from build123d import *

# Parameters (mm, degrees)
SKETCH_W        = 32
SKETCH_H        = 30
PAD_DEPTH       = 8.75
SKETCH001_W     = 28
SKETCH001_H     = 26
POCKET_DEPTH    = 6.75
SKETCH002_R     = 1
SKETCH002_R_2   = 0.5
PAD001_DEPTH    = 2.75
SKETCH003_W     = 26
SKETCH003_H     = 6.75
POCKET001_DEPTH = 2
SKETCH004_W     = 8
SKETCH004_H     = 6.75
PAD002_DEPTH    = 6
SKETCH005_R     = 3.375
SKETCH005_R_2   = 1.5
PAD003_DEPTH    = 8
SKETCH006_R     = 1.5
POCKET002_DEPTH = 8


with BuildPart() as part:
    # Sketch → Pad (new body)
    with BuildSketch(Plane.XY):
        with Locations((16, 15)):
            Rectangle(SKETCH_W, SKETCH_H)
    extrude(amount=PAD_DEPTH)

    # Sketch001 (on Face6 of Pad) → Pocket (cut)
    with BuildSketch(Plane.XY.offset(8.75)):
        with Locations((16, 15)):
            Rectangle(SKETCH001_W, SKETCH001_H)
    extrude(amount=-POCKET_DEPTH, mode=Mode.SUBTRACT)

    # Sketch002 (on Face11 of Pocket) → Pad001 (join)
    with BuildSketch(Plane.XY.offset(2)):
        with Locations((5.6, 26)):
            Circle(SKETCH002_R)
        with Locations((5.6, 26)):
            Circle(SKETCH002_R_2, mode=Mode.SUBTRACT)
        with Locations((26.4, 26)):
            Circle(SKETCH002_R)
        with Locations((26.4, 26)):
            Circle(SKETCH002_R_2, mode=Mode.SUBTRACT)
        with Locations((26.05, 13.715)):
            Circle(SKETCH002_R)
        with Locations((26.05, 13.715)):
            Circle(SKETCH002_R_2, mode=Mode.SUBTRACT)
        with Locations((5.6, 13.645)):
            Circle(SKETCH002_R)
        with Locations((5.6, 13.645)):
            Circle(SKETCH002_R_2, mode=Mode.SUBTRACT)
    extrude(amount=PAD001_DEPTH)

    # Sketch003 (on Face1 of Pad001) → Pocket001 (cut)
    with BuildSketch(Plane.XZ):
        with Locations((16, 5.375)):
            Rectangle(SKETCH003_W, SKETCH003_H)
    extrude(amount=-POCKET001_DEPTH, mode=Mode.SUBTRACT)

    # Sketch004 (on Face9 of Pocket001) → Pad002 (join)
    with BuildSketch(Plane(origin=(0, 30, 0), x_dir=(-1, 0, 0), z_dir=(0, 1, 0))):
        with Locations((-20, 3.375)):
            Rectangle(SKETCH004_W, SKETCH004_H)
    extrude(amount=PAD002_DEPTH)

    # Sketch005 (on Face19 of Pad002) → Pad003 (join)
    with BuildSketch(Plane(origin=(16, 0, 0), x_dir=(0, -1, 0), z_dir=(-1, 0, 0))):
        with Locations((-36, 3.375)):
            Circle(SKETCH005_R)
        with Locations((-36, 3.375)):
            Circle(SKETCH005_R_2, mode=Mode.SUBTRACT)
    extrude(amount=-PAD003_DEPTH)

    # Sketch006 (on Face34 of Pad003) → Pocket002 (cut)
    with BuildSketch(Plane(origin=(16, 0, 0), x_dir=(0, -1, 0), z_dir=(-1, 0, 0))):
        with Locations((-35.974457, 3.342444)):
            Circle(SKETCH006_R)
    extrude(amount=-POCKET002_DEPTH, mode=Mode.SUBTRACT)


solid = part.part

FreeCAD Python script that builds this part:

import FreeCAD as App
import Part
import Sketcher
from FreeCAD import Vector
Q = App.Units.Quantity


def add_polygon(sketch, points):
    """Adds a closed chain of lines whose ends are joined by coincident constraints."""
    first, n = sketch.GeometryCount, len(points)
    for a, b in zip(points, points[1:] + points[:1]):
        sketch.addGeometry(Part.LineSegment(App.Vector(*a, 0), App.Vector(*b, 0)), False)
    for i in range(n):
        sketch.addConstraint(Sketcher.Constraint("Coincident", first + i, 2, first + (i + 1) % n, 1))

doc = App.newDocument("Part")
params = doc.addObject("Spreadsheet::Sheet", "Params")
for row, (alias, value) in enumerate([
    ("sketch1_width", "32 mm"),
    ("sketch1_height", "30 mm"),
    ("pad1_length", "8.75 mm"),
    ("sketch2_width", "28 mm"),
    ("sketch2_height", "26 mm"),
    ("pocket1_length", "6.75 mm"),
    ("sketch3_diameter", "2 mm"),
    ("sketch3_diameter2", "1 mm"),
    ("pad2_length", "2.75 mm"),
    ("sketch4_width", "26 mm"),
    ("sketch4_height", "6.75 mm"),
    ("pocket2_length", "2 mm"),
    ("sketch5_width", "8 mm"),
    ("sketch5_height", "6.75 mm"),
    ("pad3_length", "6 mm"),
    ("sketch6_diameter", "3 mm"),
    ("sketch6_diameter2", "6.75 mm"),
    ("pad4_length", "8 mm"),
    ("sketch7_diameter", "3 mm"),
    ("pocket3_length", "8 mm"),
], start=1):
    params.set(f"A{row}", alias)
    params.set(f"B{row}", "=" + value)
    params.setAlias(f"B{row}", alias)

body = doc.addObject("PartDesign::Body", "Body")

sketch1 = body.newObject("Sketcher::SketchObject", "Sketch")
sketch1.AttachmentSupport = (doc.getObject("XY_Plane"), [""])
sketch1.MapMode = "FlatFace"
add_polygon(sketch1, [(0, 30), (0, 0), (32, 0), (32, 30)])
sketch1.addConstraint([
    Sketcher.Constraint("Vertical", 0),
    Sketcher.Constraint("Horizontal", 1),
    Sketcher.Constraint("Vertical", 2),
    Sketcher.Constraint("Horizontal", 3),
    Sketcher.Constraint("Coincident", 0, 2, -1, 1),
    Sketcher.Constraint("DistanceX", 1, 1, 1, 2, Q("32 mm")),
    Sketcher.Constraint("DistanceY", 0, 2, 0, 1, Q("30 mm")),
])
sketch1.setExpression("Constraints[9]", "Params.sketch1_width")
sketch1.setExpression("Constraints[10]", "Params.sketch1_height")
pad1 = body.newObject("PartDesign::Pad", "Pad")
pad1.Profile = sketch1
pad1.setExpression("Length", "Params.pad1_length")

sketch2 = body.newObject("Sketcher::SketchObject", "Sketch001")
sketch2.AttachmentSupport = (doc.getObject("XY_Plane"), [""])
sketch2.MapMode = "FlatFace"
sketch2.AttachmentOffset = App.Placement(Vector(0, 0, 8.75), App.Rotation())
add_polygon(sketch2, [(2, 28), (2, 2), (30, 2), (30, 28)])
sketch2.addConstraint([
    Sketcher.Constraint("Vertical", 0),
    Sketcher.Constraint("Horizontal", 1),
    Sketcher.Constraint("Vertical", 2),
    Sketcher.Constraint("Horizontal", 3),
    Sketcher.Constraint("DistanceX", 1, 1, 1, 2, Q("28 mm")),
    Sketcher.Constraint("DistanceY", 0, 2, 0, 1, Q("26 mm")),
    Sketcher.Constraint("DistanceX", -1, 1, 0, 2, Q("2 mm")),
    Sketcher.Constraint("DistanceY", -1, 1, 0, 2, Q("2 mm")),
])
sketch2.setExpression("Constraints[8]", "Params.sketch2_width")
sketch2.setExpression("Constraints[9]", "Params.sketch2_height")
pocket1 = body.newObject("PartDesign::Pocket", "Pocket")
pocket1.Profile = sketch2
pocket1.setExpression("Length", "Params.pocket1_length")

sketch3 = body.newObject("Sketcher::SketchObject", "Sketch002")
sketch3.AttachmentSupport = (doc.getObject("XY_Plane"), [""])
sketch3.MapMode = "FlatFace"
sketch3.AttachmentOffset = App.Placement(Vector(0, 0, 2), App.Rotation())
sketch3.addGeometry([
    Part.Circle(Vector(5.6, 26, 0), Vector(0, 0, 1), 1),
    Part.Circle(Vector(5.6, 26, 0), Vector(0, 0, 1), 0.5),
    Part.Circle(Vector(26.4, 26, 0), Vector(0, 0, 1), 1),
    Part.Circle(Vector(26.4, 26, 0), Vector(0, 0, 1), 0.5),
    Part.Circle(Vector(26.05, 13.715, 0), Vector(0, 0, 1), 1),
    Part.Circle(Vector(26.05, 13.715, 0), Vector(0, 0, 1), 0.5),
    Part.Circle(Vector(5.6, 13.645, 0), Vector(0, 0, 1), 1),
    Part.Circle(Vector(5.6, 13.645, 0), Vector(0, 0, 1), 0.5),
], False)
sketch3.addConstraint([
    Sketcher.Constraint("Coincident", 1, 3, 0, 3),
    Sketcher.Constraint("Coincident", 3, 3, 2, 3),
    Sketcher.Constraint("Coincident", 5, 3, 4, 3),
    Sketcher.Constraint("Coincident", 7, 3, 6, 3),
    Sketcher.Constraint("Equal", 0, 2),
    Sketcher.Constraint("Equal", 1, 3),
    Sketcher.Constraint("Equal", 2, 4),
    Sketcher.Constraint("Equal", 3, 5),
    Sketcher.Constraint("Equal", 4, 6),
    Sketcher.Constraint("Equal", 5, 7),
    Sketcher.Constraint("Horizontal", 1, 3, 2, 3),
    Sketcher.Constraint("Vertical", 1, 3, 6, 3),
    Sketcher.Constraint("Diameter", 0, Q("2 mm")),
    Sketcher.Constraint("Diameter", 1, Q("1 mm")),
    Sketcher.Constraint("DistanceY", -1, 1, 0, 3, Q("26 mm")),
    Sketcher.Constraint("DistanceX", -1, 1, 0, 3, Q("5.6 mm")),
    Sketcher.Constraint("DistanceX", -1, 1, 2, 3, Q("26.4 mm")),
    Sketcher.Constraint("DistanceX", -1, 1, 4, 3, Q("26.05 mm")),
    Sketcher.Constraint("DistanceY", 6, 3, 4, 3, Q("0.07 mm")),
    Sketcher.Constraint("DistanceY", -1, 1, 4, 3, Q("13.715 mm")),
])
sketch3.setExpression("Constraints[12]", "Params.sketch3_diameter")
sketch3.setExpression("Constraints[13]", "Params.sketch3_diameter2")
pad2 = body.newObject("PartDesign::Pad", "Pad001")
pad2.Profile = sketch3
pad2.setExpression("Length", "Params.pad2_length")

sketch4 = body.newObject("Sketcher::SketchObject", "Sketch003")
sketch4.AttachmentSupport = (doc.getObject("XZ_Plane"), [""])
sketch4.MapMode = "FlatFace"
add_polygon(sketch4, [(3, 8.75), (3, 2), (29, 2), (29, 8.75)])
sketch4.addConstraint([
    Sketcher.Constraint("Vertical", 0),
    Sketcher.Constraint("Horizontal", 1),
    Sketcher.Constraint("Vertical", 2),
    Sketcher.Constraint("Horizontal", 3),
    Sketcher.Constraint("DistanceX", 1, 1, 1, 2, Q("26 mm")),
    Sketcher.Constraint("DistanceX", -1, 1, 0, 2, Q("3 mm")),
    Sketcher.Constraint("DistanceY", -1, 1, 0, 2, Q("2 mm")),
    Sketcher.Constraint("DistanceY", 0, 2, 0, 1, Q("6.75 mm")),
])
sketch4.setExpression("Constraints[8]", "Params.sketch4_width")
sketch4.setExpression("Constraints[11]", "Params.sketch4_height")
pocket2 = body.newObject("PartDesign::Pocket", "Pocket001")
pocket2.Profile = sketch4
pocket2.setExpression("Length", "Params.pocket2_length")

sketch5 = body.newObject("Sketcher::SketchObject", "Sketch004")
sketch5.AttachmentSupport = (doc.getObject("XZ_Plane"), [""])
sketch5.MapMode = "FlatFace"
sketch5.AttachmentOffset = App.Placement(Vector(0, 0, -30), App.Rotation())
add_polygon(sketch5, [(24, 6.75), (24, 0), (16, 0), (16, 6.75)])
sketch5.addConstraint([
    Sketcher.Constraint("Vertical", 0),
    Sketcher.Constraint("Horizontal", 1),
    Sketcher.Constraint("Vertical", 2),
    Sketcher.Constraint("Horizontal", 3),
    Sketcher.Constraint("PointOnObject", 0, 2, -1),
    Sketcher.Constraint("DistanceX", 1, 2, 1, 1, Q("8 mm")),
    Sketcher.Constraint("DistanceX", -1, 1, 0, 2, Q("24 mm")),
    Sketcher.Constraint("DistanceY", 0, 2, 0, 1, Q("6.75 mm")),
])
sketch5.setExpression("Constraints[9]", "Params.sketch5_width")
sketch5.setExpression("Constraints[11]", "Params.sketch5_height")
pad3 = body.newObject("PartDesign::Pad", "Pad002")
pad3.Profile = sketch5
pad3.setExpression("Length", "Params.pad3_length")
pad3.Reversed = True

sketch6 = body.newObject("Sketcher::SketchObject", "Sketch005")
sketch6.AttachmentSupport = (doc.getObject("YZ_Plane"), [""])
sketch6.MapMode = "FlatFace"
sketch6.AttachmentOffset = App.Placement(Vector(0, 0, 16), App.Rotation())
sketch6.addGeometry([
    Part.Circle(Vector(36, 3.375, 0), Vector(0, 0, 1), 3.375),
    Part.Circle(Vector(36, 3.375, 0), Vector(0, 0, 1), 1.5),
], False)
sketch6.addConstraint([
    Sketcher.Constraint("Coincident", 1, 3, 0, 3),
    Sketcher.Constraint("Diameter", 1, Q("3 mm")),
    Sketcher.Constraint("Diameter", 0, Q("6.75 mm")),
    Sketcher.Constraint("DistanceX", -1, 1, 0, 3, Q("36 mm")),
    Sketcher.Constraint("DistanceY", -1, 1, 0, 3, Q("3.375 mm")),
])
sketch6.setExpression("Constraints[1]", "Params.sketch6_diameter")
sketch6.setExpression("Constraints[2]", "Params.sketch6_diameter2")
pad4 = body.newObject("PartDesign::Pad", "Pad003")
pad4.Profile = sketch6
pad4.setExpression("Length", "Params.pad4_length")

sketch7 = body.newObject("Sketcher::SketchObject", "Sketch006")
sketch7.AttachmentSupport = (doc.getObject("YZ_Plane"), [""])
sketch7.MapMode = "FlatFace"
sketch7.AttachmentOffset = App.Placement(Vector(0, 0, 16), App.Rotation())
sketch7.addGeometry(Part.Circle(Vector(35.974457, 3.342444, 0), Vector(0, 0, 1), 1.5), False)
sketch7.addConstraint([
    Sketcher.Constraint("Diameter", 0, Q("3 mm")),
    Sketcher.Constraint("DistanceX", -1, 1, 0, 3, Q("35.974457 mm")),
    Sketcher.Constraint("DistanceY", -1, 1, 0, 3, Q("3.342444 mm")),
])
sketch7.setExpression("Constraints[0]", "Params.sketch7_diameter")
pocket3 = body.newObject("PartDesign::Pocket", "Pocket002")
pocket3.Profile = sketch7
pocket3.setExpression("Length", "Params.pocket3_length")
pocket3.Reversed = True

doc.recompute()
